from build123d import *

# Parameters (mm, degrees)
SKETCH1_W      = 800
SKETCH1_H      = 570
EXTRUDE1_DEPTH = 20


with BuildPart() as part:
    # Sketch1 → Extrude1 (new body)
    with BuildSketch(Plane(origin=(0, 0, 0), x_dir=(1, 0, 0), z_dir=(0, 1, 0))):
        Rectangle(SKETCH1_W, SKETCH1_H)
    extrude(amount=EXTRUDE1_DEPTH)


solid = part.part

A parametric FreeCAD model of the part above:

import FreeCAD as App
import Part
import Sketcher

V = App.Vector
Q = App.Units.Quantity


def add_polygon(sketch, points):
    """Adds a closed chain of lines whose ends are joined by coincident constraints."""
    first, n = sketch.GeometryCount, len(points)
    for a, b in zip(points, points[1:] + points[:1]):
        sketch.addGeometry(Part.LineSegment(App.Vector(*a, 0), App.Vector(*b, 0)), False)
    for i in range(n):
        sketch.addConstraint(Sketcher.Constraint("Coincident", first + i, 2, first + (i + 1) % n, 1))

doc = App.newDocument("Part")
body = doc.addObject("PartDesign::Body", "Body")

# Sketch on XZ plane
sketch1 = doc.addObject("Sketcher::SketchObject", "Sketch")
body.addObject(sketch1)
sketch1.AttachmentSupport = (doc.XZ_Plane, [""])
sketch1.MapMode = "FlatFace"
add_polygon(sketch1, [(-400, -285), (-400, 285), (400, 285), (400, -285)])  # lines 0-3
sketch1.addConstraint([
    Sketcher.Constraint("Vertical", 0),
    Sketcher.Constraint("Horizontal", 1),
    Sketcher.Constraint("Vertical", 2),
    Sketcher.Constraint("Horizontal", 3),
    Sketcher.Constraint("Symmetric", 0, 2, 2, 2, -1, 1),
    Sketcher.Constraint("DistanceX", 1, 1, 1, 2, Q("800 mm")),
    Sketcher.Constraint("DistanceY", 0, 1, 0, 2, Q("570 mm")),
])
pad1 = doc.addObject("PartDesign::Pad", "Pad")
body.addObject(pad1)
pad1.Profile = sketch1
pad1.Length = 20
pad1.Reversed = True

doc.recompute()
